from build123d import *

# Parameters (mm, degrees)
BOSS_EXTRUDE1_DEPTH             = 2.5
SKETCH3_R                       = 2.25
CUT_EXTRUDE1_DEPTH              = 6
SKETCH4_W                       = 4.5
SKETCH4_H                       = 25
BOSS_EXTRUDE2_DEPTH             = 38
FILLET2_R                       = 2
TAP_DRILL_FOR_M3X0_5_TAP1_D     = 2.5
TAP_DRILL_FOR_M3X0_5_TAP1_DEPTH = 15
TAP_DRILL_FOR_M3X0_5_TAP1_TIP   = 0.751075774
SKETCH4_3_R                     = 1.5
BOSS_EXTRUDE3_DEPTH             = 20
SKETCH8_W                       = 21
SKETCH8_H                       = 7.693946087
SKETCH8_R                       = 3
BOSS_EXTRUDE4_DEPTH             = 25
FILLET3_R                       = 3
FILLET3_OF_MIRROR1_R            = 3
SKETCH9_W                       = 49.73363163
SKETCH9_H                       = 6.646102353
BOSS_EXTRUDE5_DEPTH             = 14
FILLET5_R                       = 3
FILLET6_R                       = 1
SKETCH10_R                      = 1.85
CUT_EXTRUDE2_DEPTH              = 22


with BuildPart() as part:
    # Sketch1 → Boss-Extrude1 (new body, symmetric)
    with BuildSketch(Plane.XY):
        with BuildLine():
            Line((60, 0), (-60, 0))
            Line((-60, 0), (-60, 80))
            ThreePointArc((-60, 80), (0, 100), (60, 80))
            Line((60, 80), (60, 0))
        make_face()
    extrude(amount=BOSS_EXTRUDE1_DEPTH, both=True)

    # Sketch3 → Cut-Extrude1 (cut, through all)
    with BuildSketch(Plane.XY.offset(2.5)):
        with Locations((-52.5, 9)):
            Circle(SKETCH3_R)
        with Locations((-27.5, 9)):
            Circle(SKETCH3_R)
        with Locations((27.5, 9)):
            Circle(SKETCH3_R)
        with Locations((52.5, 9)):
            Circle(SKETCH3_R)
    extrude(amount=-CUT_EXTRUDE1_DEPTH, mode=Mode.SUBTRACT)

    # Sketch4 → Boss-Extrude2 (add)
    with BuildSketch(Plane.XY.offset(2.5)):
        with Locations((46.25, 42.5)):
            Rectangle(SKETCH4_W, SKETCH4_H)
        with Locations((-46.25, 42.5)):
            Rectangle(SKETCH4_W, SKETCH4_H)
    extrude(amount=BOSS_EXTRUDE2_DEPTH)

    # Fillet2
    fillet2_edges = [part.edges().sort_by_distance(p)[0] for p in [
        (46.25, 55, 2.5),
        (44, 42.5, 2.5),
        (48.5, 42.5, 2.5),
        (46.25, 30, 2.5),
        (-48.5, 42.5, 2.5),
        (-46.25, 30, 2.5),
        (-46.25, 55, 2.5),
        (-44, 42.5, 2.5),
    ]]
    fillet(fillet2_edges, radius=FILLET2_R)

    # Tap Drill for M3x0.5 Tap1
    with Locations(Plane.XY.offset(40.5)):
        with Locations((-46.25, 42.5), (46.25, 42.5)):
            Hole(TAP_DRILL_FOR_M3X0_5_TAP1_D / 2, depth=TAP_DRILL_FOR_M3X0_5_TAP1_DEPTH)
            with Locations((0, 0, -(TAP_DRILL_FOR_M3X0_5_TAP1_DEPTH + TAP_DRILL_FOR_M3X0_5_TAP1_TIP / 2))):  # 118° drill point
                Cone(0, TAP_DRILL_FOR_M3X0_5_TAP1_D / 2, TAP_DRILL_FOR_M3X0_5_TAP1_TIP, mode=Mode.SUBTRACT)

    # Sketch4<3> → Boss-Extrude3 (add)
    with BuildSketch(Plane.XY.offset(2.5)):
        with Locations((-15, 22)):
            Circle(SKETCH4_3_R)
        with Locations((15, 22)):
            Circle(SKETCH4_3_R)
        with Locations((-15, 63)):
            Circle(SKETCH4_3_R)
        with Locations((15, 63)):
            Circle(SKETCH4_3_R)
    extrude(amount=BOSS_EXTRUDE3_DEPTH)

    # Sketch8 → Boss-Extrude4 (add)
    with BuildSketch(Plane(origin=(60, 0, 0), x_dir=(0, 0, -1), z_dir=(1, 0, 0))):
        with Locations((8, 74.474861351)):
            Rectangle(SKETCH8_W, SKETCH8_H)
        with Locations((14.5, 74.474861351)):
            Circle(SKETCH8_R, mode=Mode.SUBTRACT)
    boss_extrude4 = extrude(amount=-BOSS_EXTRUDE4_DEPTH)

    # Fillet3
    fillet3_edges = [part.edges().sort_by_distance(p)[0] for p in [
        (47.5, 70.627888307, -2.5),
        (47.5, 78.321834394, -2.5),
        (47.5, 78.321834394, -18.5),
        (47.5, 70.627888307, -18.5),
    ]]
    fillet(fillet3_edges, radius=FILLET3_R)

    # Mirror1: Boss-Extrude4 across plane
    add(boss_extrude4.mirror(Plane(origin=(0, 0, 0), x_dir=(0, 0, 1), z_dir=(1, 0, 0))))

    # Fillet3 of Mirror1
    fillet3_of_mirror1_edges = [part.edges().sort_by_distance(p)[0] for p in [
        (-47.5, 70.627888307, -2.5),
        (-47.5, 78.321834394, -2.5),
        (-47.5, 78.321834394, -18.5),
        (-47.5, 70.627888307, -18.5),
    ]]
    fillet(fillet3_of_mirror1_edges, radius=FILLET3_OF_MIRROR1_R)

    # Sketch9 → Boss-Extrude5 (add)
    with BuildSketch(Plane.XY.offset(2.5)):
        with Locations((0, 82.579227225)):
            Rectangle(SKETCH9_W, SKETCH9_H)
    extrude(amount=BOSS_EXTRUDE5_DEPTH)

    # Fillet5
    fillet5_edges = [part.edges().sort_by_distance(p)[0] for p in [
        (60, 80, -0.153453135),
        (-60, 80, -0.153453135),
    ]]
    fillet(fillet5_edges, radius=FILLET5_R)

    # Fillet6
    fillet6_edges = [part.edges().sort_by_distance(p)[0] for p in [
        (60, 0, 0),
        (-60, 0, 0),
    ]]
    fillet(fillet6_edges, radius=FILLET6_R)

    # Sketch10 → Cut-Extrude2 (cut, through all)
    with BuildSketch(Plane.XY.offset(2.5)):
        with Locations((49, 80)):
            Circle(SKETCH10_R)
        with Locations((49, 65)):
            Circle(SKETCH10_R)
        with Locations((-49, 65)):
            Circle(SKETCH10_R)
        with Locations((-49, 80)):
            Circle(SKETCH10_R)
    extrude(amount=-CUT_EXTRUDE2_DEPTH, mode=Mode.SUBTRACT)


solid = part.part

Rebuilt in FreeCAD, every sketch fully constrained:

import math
import FreeCAD as App
import Part
import Sketcher
Q = App.Units.Quantity


def edges_at(feature, points):
    """Names of the edges that pass closest to the given points."""
    edges = feature.Shape.Edges
    near = lambda p: min(range(len(edges)), key=lambda i: edges[i].distToShape(Part.Vertex(*p))[0])
    return sorted({f"Edge{near(p) + 1}" for p in points})


def add_polygon(sketch, points):
    """Adds a closed chain of lines whose ends are joined by coincident constraints."""
    first, n = sketch.GeometryCount, len(points)
    for a, b in zip(points, points[1:] + points[:1]):
        sketch.addGeometry(Part.LineSegment(App.Vector(*a, 0), App.Vector(*b, 0)), False)
    for i in range(n):
        sketch.addConstraint(Sketcher.Constraint("Coincident", first + i, 2, first + (i + 1) % n, 1))

doc = App.newDocument("Part")
body = doc.addObject("PartDesign::Body", "Body")

sketch1 = body.newObject("Sketcher::SketchObject", "Sketch")
sketch1.AttachmentSupport = (doc.getObject("XY_Plane"), [""])
sketch1.MapMode = "FlatFace"
sketch1.addGeometry([
    Part.LineSegment(App.Vector(-60, 0, 0), App.Vector(60, 0, 0)),
    Part.LineSegment(App.Vector(60, 0, 0), App.Vector(60, 80, 0)),
    Part.ArcOfCircle(Part.Circle(App.Vector(0, 0, 0), App.Vector(0, 0, 1), 100), math.radians(53.130102), math.radians(126.869898)),
    Part.LineSegment(App.Vector(-60, 80, 0), App.Vector(-60, 0, 0)),
], False)
sketch1.addConstraint([
    Sketcher.Constraint("Coincident", 0, 2, 1, 1),
    Sketcher.Constraint("Coincident", 1, 2, 2, 1),
    Sketcher.Constraint("Coincident", 2, 2, 3, 1),
    Sketcher.Constraint("Coincident", 3, 2, 0, 1),
    Sketcher.Constraint("Horizontal", 0),
    Sketcher.Constraint("Vertical", 1),
    Sketcher.Constraint("Vertical", 3),
    Sketcher.Constraint("Coincident", 2, 3, -1, 1),
    Sketcher.Constraint("Symmetric", 0, 2, 3, 2, -1, 1),
    Sketcher.Constraint("Radius", 2, Q("100 mm")),
    Sketcher.Constraint("DistanceX", 0, 1, 0, 2, Q("120 mm")),
])
pad1 = body.newObject("PartDesign::Pad", "Pad")
pad1.Profile = sketch1
pad1.Length = 5
pad1.Midplane = True

sketch2 = body.newObject("Sketcher::SketchObject", "Sketch001")
sketch2.AttachmentSupport = (doc.getObject("XY_Plane"), [""])
sketch2.MapMode = "FlatFace"
sketch2.AttachmentOffset = App.Placement(App.Vector(0, 0, 2.5), App.Rotation())
sketch2.addGeometry([
    Part.Circle(App.Vector(-52.5, 9, 0), App.Vector(0, 0, 1), 2.25),
    Part.Circle(App.Vector(-27.5, 9, 0), App.Vector(0, 0, 1), 2.25),
    Part.Circle(App.Vector(27.5, 9, 0), App.Vector(0, 0, 1), 2.25),
    Part.Circle(App.Vector(52.5, 9, 0), App.Vector(0, 0, 1), 2.25),
], False)
sketch2.addConstraint([
    Sketcher.Constraint("Equal", 0, 1),
    Sketcher.Constraint("Equal", 1, 2),
    Sketcher.Constraint("Equal", 2, 3),
    Sketcher.Constraint("Symmetric", 1, 3, 2, 3, -2),
    Sketcher.Constraint("Symmetric", 0, 3, 3, 3, -2),
    Sketcher.Constraint("Horizontal", 0, 3, 1, 3),
    Sketcher.Constraint("Diameter", 0, Q("4.5 mm")),
    Sketcher.Constraint("DistanceY", -1, 1, 0, 3, Q("9 mm")),
    Sketcher.Constraint("DistanceX", 0, 3, 1, 3, Q("25 mm")),
    Sketcher.Constraint("DistanceX", 1, 3, 2, 3, Q("55 mm")),
])
pocket1 = body.newObject("PartDesign::Pocket", "Pocket")
pocket1.Profile = sketch2
pocket1.Type = "ThroughAll"

sketch3 = body.newObject("Sketcher::SketchObject", "Sketch002")
sketch3.AttachmentSupport = (doc.getObject("XY_Plane"), [""])
sketch3.MapMode = "FlatFace"
sketch3.AttachmentOffset = App.Placement(App.Vector(0, 0, 2.5), App.Rotation())
add_polygon(sketch3, [(44, 55), (44, 30), (48.5, 30), (48.5, 55)])
add_polygon(sketch3, [(-48.5, 55), (-48.5, 30), (-44, 30), (-44, 55)])
sketch3.addConstraint([
    Sketcher.Constraint("Vertical", 0),
    Sketcher.Constraint("Horizontal", 1),
    Sketcher.Constraint("Vertical", 2),
    Sketcher.Constraint("Horizontal", 3),
    Sketcher.Constraint("Vertical", 4),
    Sketcher.Constraint("Horizontal", 5),
    Sketcher.Constraint("Vertical", 6),
    Sketcher.Constraint("Horizontal", 7),
    Sketcher.Constraint("Symmetric", 1, 2, 4, 2, -2),
    Sketcher.Constraint("Symmetric", 3, 2, 6, 2, -2),
    Sketcher.Constraint("DistanceY", 0, 2, 0, 1, Q("25 mm")),
    Sketcher.Constraint("DistanceX", 1, 1, 1, 2, Q("4.5 mm")),
    Sketcher.Constraint("DistanceX", -1, 1, 0, 2, Q("44 mm")),
    Sketcher.Constraint("DistanceY", -1, 1, 0, 2, Q("30 mm")),
])
pad2 = body.newObject("PartDesign::Pad", "Pad001")
pad2.Profile = sketch3
pad2.Length = 38
doc.recompute()

fillet = body.newObject("PartDesign::Fillet", "Fillet")
fillet.Base = (pad2, edges_at(pad2, [
    (46.25, 55, 2.5),
    (44, 42.5, 2.5),
    (48.5, 42.5, 2.5),
    (46.25, 30, 2.5),
    (-48.5, 42.5, 2.5),
    (-46.25, 30, 2.5),
    (-46.25, 55, 2.5),
    (-44, 42.5, 2.5),
]))
fillet.Radius = 2

sketch4 = body.newObject("Sketcher::SketchObject", "Sketch003")
sketch4.AttachmentSupport = (doc.getObject("XY_Plane"), [""])
sketch4.MapMode = "FlatFace"
sketch4.AttachmentOffset = App.Placement(App.Vector(0, 0, 40.5), App.Rotation())
sketch4.addGeometry([
    Part.Circle(App.Vector(-46.25, 42.5, 0), App.Vector(0, 0, 1), 1.25),
    Part.Circle(App.Vector(46.25, 42.5, 0), App.Vector(0, 0, 1), 1.25),
], False)
sketch4.addConstraint([
    Sketcher.Constraint("Equal", 0, 1),
    Sketcher.Constraint("Symmetric", 0, 3, 1, 3, -2),
    Sketcher.Constraint("Diameter", 0, Q("2.5 mm")),
    Sketcher.Constraint("DistanceY", -1, 1, 0, 3, Q("42.5 mm")),
    Sketcher.Constraint("DistanceX", 0, 3, 1, 3, Q("92.5 mm")),
])
doc.recompute()
hole = body.newObject("PartDesign::Hole", "Hole")
hole.Profile = sketch4
hole.ThreadType = "None"
hole.Diameter = 2.5
hole.DepthType = "Dimension"
hole.Depth = 15
hole.DrillPoint = "Angled"
hole.DrillPointAngle = 118

sketch5 = body.newObject("Sketcher::SketchObject", "Sketch004")
sketch5.AttachmentSupport = (doc.getObject("XY_Plane"), [""])
sketch5.MapMode = "FlatFace"
sketch5.AttachmentOffset = App.Placement(App.Vector(0, 0, 2.5), App.Rotation())
sketch5.addGeometry([
    Part.Circle(App.Vector(-15, 22, 0), App.Vector(0, 0, 1), 1.5),
    Part.Circle(App.Vector(15, 22, 0), App.Vector(0, 0, 1), 1.5),
    Part.Circle(App.Vector(-15, 63, 0), App.Vector(0, 0, 1), 1.5),
    Part.Circle(App.Vector(15, 63, 0), App.Vector(0, 0, 1), 1.5),
], False)
sketch5.addConstraint([
    Sketcher.Constraint("Equal", 0, 1),
    Sketcher.Constraint("Equal", 1, 2),
    Sketcher.Constraint("Equal", 2, 3),
    Sketcher.Constraint("Symmetric", 0, 3, 1, 3, -2),
    Sketcher.Constraint("Symmetric", 2, 3, 3, 3, -2),
    Sketcher.Constraint("Vertical", 0, 3, 2, 3),
    Sketcher.Constraint("Diameter", 0, Q("3 mm")),
    Sketcher.Constraint("DistanceX", 0, 3, -1, 1, Q("15 mm")),
    Sketcher.Constraint("DistanceY", -1, 1, 0, 3, Q("22 mm")),
    Sketcher.Constraint("DistanceY", -1, 1, 2, 3, Q("63 mm")),
])
pad3 = body.newObject("PartDesign::Pad", "Pad002")
pad3.Profile = sketch5
pad3.Length = 20

sketch6 = body.newObject("Sketcher::SketchObject", "Sketch005")
sketch6.AttachmentSupport = (doc.getObject("YZ_Plane"), [""])
sketch6.MapMode = "FlatFace"
sketch6.AttachmentOffset = App.Placement(App.Vector(0, 0, 60), App.Rotation())
add_polygon(sketch6, [(78.321834, 2.5), (70.627888, 2.5), (70.627888, -18.5), (78.321834, -18.5)])
sketch6.addGeometry(Part.Circle(App.Vector(74.474861, -14.5, 0), App.Vector(0, 0, 1), 3), False)
sketch6.addConstraint([
    Sketcher.Constraint("Horizontal", 0),
    Sketcher.Constraint("Vertical", 1),
    Sketcher.Constraint("Horizontal", 2),
    Sketcher.Constraint("Vertical", 3),
    Sketcher.Constraint("Diameter", 4, Q("6 mm")),
    Sketcher.Constraint("DistanceY", 1, 2, 1, 1, Q("21 mm")),
    Sketcher.Constraint("DistanceY", 4, 3, 0, 2, Q("17 mm")),
    Sketcher.Constraint("DistanceY", 4, 3, -1, 1, Q("14.5 mm")),
    Sketcher.Constraint("DistanceX", 0, 2, 0, 1, Q("7.693946 mm")),
    Sketcher.Constraint("DistanceX", -1, 1, 4, 3, Q("74.474861 mm")),
    Sketcher.Constraint("DistanceX", -1, 1, 0, 2, Q("70.627888 mm")),
])
pad4 = body.newObject("PartDesign::Pad", "Pad003")
pad4.Profile = sketch6
pad4.Length = 25
pad4.Reversed = True
doc.recompute()

fillet2 = body.newObject("PartDesign::Fillet", "Fillet001")
fillet2.Base = (pad4, edges_at(pad4, [
    (47.5, 70.628, -2.5),
    (47.5, 78.322, -2.5),
    (47.5, 78.322, -18.5),
    (47.5, 70.628, -18.5),
]))
fillet2.Radius = 3
doc.recompute()

mirrored = body.newObject("PartDesign::Mirrored", "Mirrored")
mirrored.Originals = [pad4]
mirrored.MirrorPlane = (doc.getObject("YZ_Plane"), [""])
body.Tip = mirrored
doc.recompute()

fillet3 = body.newObject("PartDesign::Fillet", "Fillet002")
fillet3.Base = (mirrored, edges_at(mirrored, [
    (-47.5, 70.628, -2.5),
    (-47.5, 78.322, -2.5),
    (-47.5, 78.322, -18.5),
    (-47.5, 70.628, -18.5),
]))
fillet3.Radius = 3

sketch7 = body.newObject("Sketcher::SketchObject", "Sketch006")
sketch7.AttachmentSupport = (doc.getObject("XY_Plane"), [""])
sketch7.MapMode = "FlatFace"
sketch7.AttachmentOffset = App.Placement(App.Vector(0, 0, 2.5), App.Rotation())
add_polygon(sketch7, [(-24.866816, 85.902278), (-24.866816, 79.256176), (24.866816, 79.256176), (24.866816, 85.902278)])
sketch7.addConstraint([
    Sketcher.Constraint("Vertical", 0),
    Sketcher.Constraint("Horizontal", 1),
    Sketcher.Constraint("Vertical", 2),
    Sketcher.Constraint("Horizontal", 3),
    Sketcher.Constraint("DistanceX", 1, 1, 1, 2, Q("49.733632 mm")),
    Sketcher.Constraint("DistanceY", 0, 2, 0, 1, Q("6.646102 mm")),
    Sketcher.Constraint("DistanceY", -1, 1, 2, 2, Q("85.902278 mm")),
    Sketcher.Constraint("DistanceX", 0, 2, -1, 1, Q("24.866816 mm")),
])
pad5 = body.newObject("PartDesign::Pad", "Pad004")
pad5.Profile = sketch7
pad5.Length = 14
doc.recompute()

fillet4 = body.newObject("PartDesign::Fillet", "Fillet003")
fillet4.Base = (pad5, edges_at(pad5, [(60, 80, -0.153), (-60, 80, -0.153)]))
fillet4.Radius = 3
doc.recompute()

fillet5 = body.newObject("PartDesign::Fillet", "Fillet004")
fillet5.Base = (fillet4, edges_at(fillet4, [(60, 0, 0), (-60, 0, 0)]))
fillet5.Radius = 1

sketch8 = body.newObject("Sketcher::SketchObject", "Sketch007")
sketch8.AttachmentSupport = (doc.getObject("XY_Plane"), [""])
sketch8.MapMode = "FlatFace"
sketch8.AttachmentOffset = App.Placement(App.Vector(0, 0, 2.5), App.Rotation())
sketch8.addGeometry([
    Part.Circle(App.Vector(49, 80, 0), App.Vector(0, 0, 1), 1.85),
    Part.Circle(App.Vector(49, 65, 0), App.Vector(0, 0, 1), 1.85),
    Part.Circle(App.Vector(-49, 65, 0), App.Vector(0, 0, 1), 1.85),
    Part.Circle(App.Vector(-49, 80, 0), App.Vector(0, 0, 1), 1.85),
], False)
sketch8.addConstraint([
    Sketcher.Constraint("Equal", 0, 1),
    Sketcher.Constraint("Equal", 1, 2),
    Sketcher.Constraint("Equal", 2, 3),
    Sketcher.Constraint("Symmetric", 1, 3, 2, 3, -2),
    Sketcher.Constraint("Symmetric", 0, 3, 3, 3, -2),
    Sketcher.Constraint("Vertical", 0, 3, 1, 3),
    Sketcher.Constraint("Diameter", 0, Q("3.7 mm")),
    Sketcher.Constraint("DistanceX", -1, 1, 0, 3, Q("49 mm")),
    Sketcher.Constraint("DistanceY", -1, 1, 0, 3, Q("80 mm")),
    Sketcher.Constraint("DistanceY", -1, 1, 1, 3, Q("65 mm")),
])
pocket2 = body.newObject("PartDesign::Pocket", "Pocket001")
pocket2.Profile = sketch8
pocket2.Type = "ThroughAll"

doc.recompute()
